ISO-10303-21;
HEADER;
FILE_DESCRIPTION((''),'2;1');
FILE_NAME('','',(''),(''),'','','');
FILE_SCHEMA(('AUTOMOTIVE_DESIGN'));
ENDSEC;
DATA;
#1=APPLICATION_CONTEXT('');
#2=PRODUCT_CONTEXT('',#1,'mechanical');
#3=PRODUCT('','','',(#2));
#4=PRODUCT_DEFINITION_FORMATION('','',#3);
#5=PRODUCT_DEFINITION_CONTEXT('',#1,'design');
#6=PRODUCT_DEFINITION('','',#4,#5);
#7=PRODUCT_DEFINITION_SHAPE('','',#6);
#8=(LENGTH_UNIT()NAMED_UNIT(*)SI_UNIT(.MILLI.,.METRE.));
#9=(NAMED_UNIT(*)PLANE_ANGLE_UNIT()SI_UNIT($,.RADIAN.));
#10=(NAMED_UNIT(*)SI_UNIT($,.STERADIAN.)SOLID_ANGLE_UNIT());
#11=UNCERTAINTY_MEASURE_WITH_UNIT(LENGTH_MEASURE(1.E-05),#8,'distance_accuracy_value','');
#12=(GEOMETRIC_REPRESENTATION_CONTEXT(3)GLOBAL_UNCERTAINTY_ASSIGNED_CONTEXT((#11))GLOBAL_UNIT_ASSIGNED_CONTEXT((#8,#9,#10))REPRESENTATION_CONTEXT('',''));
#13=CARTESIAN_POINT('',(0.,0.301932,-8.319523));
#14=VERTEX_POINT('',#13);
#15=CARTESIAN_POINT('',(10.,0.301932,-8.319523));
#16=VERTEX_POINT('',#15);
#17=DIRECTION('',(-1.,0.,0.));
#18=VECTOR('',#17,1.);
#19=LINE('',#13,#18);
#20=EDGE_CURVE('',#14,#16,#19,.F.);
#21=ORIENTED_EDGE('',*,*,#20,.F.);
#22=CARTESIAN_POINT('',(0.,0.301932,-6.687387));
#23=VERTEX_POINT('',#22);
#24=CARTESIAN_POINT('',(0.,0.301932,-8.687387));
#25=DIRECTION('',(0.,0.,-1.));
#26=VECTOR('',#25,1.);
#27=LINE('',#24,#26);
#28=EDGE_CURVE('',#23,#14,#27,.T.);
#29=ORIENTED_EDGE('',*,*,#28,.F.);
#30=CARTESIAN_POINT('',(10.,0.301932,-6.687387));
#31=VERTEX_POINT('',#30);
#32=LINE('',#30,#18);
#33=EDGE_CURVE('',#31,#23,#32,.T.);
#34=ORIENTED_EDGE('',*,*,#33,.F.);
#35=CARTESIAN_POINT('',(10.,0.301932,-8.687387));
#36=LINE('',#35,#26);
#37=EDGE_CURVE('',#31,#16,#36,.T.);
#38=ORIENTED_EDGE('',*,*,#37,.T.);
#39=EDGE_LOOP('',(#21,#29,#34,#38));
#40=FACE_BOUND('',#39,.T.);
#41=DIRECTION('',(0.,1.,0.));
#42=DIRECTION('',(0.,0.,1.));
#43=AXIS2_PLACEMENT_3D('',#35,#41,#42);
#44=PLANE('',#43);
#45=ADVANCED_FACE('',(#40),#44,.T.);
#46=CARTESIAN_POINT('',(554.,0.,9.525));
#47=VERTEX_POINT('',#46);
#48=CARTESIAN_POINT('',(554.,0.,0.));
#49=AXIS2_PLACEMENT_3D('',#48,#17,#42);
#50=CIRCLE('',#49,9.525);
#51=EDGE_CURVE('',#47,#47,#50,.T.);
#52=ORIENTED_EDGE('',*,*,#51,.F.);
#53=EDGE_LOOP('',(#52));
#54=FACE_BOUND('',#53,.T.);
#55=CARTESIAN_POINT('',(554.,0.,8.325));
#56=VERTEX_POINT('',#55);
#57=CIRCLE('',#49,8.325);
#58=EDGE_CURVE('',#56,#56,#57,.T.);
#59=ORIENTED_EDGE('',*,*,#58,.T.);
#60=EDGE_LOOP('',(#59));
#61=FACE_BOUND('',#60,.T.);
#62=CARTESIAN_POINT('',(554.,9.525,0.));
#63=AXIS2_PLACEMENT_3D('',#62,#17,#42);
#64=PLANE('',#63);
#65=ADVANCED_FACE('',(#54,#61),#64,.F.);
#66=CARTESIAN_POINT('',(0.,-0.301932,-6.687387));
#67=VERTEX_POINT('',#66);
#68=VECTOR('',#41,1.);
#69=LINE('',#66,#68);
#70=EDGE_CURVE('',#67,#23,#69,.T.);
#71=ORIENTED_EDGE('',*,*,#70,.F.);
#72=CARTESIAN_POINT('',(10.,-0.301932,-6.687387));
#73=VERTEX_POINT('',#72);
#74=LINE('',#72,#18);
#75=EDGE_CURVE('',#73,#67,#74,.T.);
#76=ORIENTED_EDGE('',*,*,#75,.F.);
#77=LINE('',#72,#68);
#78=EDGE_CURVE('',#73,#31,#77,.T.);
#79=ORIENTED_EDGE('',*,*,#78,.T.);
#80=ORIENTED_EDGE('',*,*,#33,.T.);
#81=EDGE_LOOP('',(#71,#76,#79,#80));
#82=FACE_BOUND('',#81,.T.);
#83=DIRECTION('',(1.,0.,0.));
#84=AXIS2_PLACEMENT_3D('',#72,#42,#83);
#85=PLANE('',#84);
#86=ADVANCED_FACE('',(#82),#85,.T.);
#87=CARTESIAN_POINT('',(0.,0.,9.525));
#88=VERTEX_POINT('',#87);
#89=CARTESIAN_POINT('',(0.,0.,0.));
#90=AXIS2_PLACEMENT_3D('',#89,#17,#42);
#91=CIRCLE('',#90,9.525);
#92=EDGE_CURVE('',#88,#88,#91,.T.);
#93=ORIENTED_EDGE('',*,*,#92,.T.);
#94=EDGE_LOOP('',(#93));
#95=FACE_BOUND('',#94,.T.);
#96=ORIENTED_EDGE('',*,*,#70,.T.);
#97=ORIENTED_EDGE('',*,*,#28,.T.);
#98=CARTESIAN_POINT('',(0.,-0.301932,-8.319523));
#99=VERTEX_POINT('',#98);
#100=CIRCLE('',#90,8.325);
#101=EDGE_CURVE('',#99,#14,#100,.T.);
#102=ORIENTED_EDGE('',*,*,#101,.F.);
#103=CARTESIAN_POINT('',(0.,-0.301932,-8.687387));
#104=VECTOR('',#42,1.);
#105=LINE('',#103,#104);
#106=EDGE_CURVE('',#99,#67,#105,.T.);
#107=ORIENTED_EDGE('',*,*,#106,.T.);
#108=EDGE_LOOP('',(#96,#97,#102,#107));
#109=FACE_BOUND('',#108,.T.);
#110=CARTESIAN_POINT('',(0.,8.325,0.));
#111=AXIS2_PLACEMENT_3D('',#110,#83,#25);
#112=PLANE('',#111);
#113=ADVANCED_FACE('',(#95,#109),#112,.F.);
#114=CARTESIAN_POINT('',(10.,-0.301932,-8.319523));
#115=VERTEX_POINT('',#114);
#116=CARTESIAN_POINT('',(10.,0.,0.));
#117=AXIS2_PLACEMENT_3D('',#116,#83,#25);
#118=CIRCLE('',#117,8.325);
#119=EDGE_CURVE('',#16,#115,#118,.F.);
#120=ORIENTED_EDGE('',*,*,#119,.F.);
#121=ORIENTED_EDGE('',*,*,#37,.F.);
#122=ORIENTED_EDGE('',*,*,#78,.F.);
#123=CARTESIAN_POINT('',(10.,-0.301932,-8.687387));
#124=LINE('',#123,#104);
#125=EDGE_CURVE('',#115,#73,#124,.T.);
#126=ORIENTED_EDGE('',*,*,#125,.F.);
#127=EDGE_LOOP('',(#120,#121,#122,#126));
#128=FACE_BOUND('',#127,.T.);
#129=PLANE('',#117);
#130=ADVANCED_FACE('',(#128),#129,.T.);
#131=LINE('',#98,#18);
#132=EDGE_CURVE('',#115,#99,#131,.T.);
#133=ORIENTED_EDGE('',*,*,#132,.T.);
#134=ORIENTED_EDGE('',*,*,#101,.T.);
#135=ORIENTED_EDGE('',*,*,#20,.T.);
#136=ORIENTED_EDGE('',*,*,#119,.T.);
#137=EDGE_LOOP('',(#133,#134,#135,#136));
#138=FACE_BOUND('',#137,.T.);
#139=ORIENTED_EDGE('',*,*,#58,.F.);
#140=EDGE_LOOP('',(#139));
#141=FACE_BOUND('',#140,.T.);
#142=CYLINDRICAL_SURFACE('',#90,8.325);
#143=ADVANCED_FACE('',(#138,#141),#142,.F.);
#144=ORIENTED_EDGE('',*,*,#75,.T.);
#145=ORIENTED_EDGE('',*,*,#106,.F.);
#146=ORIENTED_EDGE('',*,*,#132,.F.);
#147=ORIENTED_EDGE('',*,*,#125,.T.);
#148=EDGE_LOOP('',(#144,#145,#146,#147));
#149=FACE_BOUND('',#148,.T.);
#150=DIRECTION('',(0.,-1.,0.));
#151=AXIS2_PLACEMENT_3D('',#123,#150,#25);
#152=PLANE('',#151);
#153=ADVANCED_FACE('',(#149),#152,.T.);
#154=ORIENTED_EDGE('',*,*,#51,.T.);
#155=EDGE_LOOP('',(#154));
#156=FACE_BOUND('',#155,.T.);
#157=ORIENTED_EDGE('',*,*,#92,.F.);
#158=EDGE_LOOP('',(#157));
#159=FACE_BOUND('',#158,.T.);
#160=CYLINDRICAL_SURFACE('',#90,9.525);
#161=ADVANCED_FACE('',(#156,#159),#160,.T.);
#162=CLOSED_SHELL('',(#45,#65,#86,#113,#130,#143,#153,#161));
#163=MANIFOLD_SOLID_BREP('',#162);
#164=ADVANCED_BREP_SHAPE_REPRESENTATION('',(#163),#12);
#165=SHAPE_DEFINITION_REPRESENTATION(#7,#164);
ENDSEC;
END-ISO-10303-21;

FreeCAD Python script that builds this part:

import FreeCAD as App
import Part
import Sketcher

V = App.Vector

doc = App.newDocument("Part")
body = doc.addObject("PartDesign::Body", "Body")

# Sketch on XY plane
sketch1 = body.newObject("Sketcher::SketchObject", "Sketch")
sketch1.AttachmentSupport = (doc.getObject("XY_Plane"), [""])
sketch1.MapMode = "FlatFace"
sketch1.addGeometry([
    Part.LineSegment(V(0, 9.5, 0), V(0, 8.3, 0)),
    Part.LineSegment(V(0, 8.3, 0), V(554, 8.3, 0)),
    Part.LineSegment(V(554, 8.3, 0), V(554, 9.5, 0)),
    Part.LineSegment(V(554, 9.5, 0), V(0, 9.5, 0)),
], False)
sketch1.addConstraint([
    Sketcher.Constraint("Coincident", 0, 2, 1, 1),
    Sketcher.Constraint("Coincident", 1, 2, 2, 1),
    Sketcher.Constraint("Coincident", 2, 2, 3, 1),
    Sketcher.Constraint("Coincident", 3, 2, 0, 1),
    Sketcher.Constraint("Vertical", 0),
    Sketcher.Constraint("Horizontal", 1),
    Sketcher.Constraint("Vertical", 2),
    Sketcher.Constraint("Horizontal", 3),
    Sketcher.Constraint("PointOnObject", 0, 2, -2),
    Sketcher.Constraint("DistanceX", 1, 1, 1, 2, 554.0),
    Sketcher.Constraint("DistanceY", 0, 2, 0, 1, 1.2),
    Sketcher.Constraint("DistanceY", -1, 1, 0, 2, 8.325),
])
revolution = body.newObject("PartDesign::Revolution", "Revolution")
revolution.Profile = sketch1
revolution.ReferenceAxis = (sketch1, ["H_Axis"])
revolution.Angle = 360

# Sketch on YZ plane
sketch2 = body.newObject("Sketcher::SketchObject", "Sketch001")
sketch2.AttachmentSupport = (doc.getObject("YZ_Plane"), [""])
sketch2.MapMode = "FlatFace"
sketch2.addGeometry([
    Part.LineSegment(V(0.3, -8.7, 0), V(-0.3, -8.7, 0)),
    Part.LineSegment(V(-0.3, -8.7, 0), V(-0.3, -6.7, 0)),
    Part.LineSegment(V(-0.3, -6.7, 0), V(0.3, -6.7, 0)),
    Part.LineSegment(V(0.3, -6.7, 0), V(0.3, -8.7, 0)),
], False)
sketch2.addConstraint([
    Sketcher.Constraint("Coincident", 0, 2, 1, 1),
    Sketcher.Constraint("Coincident", 1, 2, 2, 1),
    Sketcher.Constraint("Coincident", 2, 2, 3, 1),
    Sketcher.Constraint("Coincident", 3, 2, 0, 1),
    Sketcher.Constraint("Horizontal", 0),
    Sketcher.Constraint("Vertical", 1),
    Sketcher.Constraint("Horizontal", 2),
    Sketcher.Constraint("Vertical", 3),
    Sketcher.Constraint("DistanceY", 1, 1, 1, 2, 2.0),
    Sketcher.Constraint("DistanceX", 0, 2, 0, 1, 0.603863),
    Sketcher.Constraint("DistanceX", 0, 2, -1, 1, 0.301932),
    Sketcher.Constraint("DistanceY", 0, 2, -1, 1, 8.687387),
])
pad1 = body.newObject("PartDesign::Pad", "Pad")
pad1.Profile = sketch2
pad1.Length = 10

doc.recompute()
